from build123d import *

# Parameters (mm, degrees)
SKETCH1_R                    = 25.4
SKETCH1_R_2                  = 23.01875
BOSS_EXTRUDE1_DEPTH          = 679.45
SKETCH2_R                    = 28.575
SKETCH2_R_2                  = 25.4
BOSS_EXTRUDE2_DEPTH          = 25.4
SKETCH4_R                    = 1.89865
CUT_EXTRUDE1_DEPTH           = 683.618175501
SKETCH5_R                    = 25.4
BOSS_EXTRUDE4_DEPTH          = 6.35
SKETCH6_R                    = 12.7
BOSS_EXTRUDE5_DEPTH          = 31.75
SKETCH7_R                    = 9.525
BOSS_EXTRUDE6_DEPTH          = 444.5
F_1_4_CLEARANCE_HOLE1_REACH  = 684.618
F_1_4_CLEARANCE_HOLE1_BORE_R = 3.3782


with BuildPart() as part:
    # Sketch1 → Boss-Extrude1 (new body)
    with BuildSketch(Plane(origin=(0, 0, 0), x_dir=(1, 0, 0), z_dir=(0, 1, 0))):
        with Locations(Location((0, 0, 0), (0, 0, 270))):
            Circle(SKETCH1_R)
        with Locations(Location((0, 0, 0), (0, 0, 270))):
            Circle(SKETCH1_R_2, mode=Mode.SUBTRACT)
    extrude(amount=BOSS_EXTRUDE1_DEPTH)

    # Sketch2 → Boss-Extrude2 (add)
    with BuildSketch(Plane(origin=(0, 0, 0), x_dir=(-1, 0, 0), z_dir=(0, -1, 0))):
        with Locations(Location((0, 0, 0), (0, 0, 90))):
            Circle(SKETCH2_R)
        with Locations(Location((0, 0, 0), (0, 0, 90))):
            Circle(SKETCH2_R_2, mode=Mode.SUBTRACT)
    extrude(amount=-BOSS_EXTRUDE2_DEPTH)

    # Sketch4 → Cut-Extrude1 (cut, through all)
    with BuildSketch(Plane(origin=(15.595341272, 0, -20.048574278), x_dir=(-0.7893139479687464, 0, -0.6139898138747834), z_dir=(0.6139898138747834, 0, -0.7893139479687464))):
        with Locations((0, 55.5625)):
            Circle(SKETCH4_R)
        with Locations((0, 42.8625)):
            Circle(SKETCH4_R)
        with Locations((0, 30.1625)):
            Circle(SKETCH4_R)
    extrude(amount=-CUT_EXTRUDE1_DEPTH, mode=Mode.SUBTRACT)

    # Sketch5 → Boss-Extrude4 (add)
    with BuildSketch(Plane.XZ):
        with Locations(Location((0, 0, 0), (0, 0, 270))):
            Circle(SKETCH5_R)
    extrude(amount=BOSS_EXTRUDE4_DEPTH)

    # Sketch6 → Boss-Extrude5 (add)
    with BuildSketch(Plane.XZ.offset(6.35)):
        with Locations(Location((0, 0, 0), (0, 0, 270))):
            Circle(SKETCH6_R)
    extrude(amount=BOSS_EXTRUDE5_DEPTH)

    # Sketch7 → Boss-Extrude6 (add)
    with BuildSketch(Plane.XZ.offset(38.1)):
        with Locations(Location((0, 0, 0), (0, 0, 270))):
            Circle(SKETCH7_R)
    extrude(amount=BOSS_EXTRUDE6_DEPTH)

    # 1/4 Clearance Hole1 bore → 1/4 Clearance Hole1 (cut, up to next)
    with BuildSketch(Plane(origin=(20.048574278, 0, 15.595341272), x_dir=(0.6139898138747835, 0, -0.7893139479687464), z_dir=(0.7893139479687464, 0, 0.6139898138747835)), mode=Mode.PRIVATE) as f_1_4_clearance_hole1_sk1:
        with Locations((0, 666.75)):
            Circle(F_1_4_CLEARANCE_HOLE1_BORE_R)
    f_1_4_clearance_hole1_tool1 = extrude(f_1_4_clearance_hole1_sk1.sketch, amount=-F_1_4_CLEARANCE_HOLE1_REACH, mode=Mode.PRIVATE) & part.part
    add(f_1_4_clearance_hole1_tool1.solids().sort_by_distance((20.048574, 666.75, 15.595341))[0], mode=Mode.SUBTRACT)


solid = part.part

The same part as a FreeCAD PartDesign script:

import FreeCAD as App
import Part
import Sketcher
Q = App.Units.Quantity

doc = App.newDocument("Part")
body = doc.addObject("PartDesign::Body", "Body")

# Sketch on XZ plane
sketch1 = body.newObject("Sketcher::SketchObject", "Sketch")
sketch1.AttachmentSupport = (doc.getObject("XZ_Plane"), [""])
sketch1.MapMode = "FlatFace"
sketch1.addGeometry([
    Part.Circle(App.Vector(0, 0, 0), App.Vector(0, 0, 1), 25.4),
    Part.Circle(App.Vector(0, 0, 0), App.Vector(0, 0, 1), 23.01875),
], False)
sketch1.addConstraint([
    Sketcher.Constraint("Coincident", 0, 3, -1, 1),
    Sketcher.Constraint("Coincident", 1, 3, -1, 1),
    Sketcher.Constraint("Diameter", 0, Q("2 in")),
    Sketcher.Constraint("Diameter", 1, Q("1.8125 in")),
])
pad1 = body.newObject("PartDesign::Pad", "Pad")
pad1.Profile = sketch1
pad1.Length = Q("26.75 in")
pad1.Reversed = True

# Sketch on XZ plane
sketch2 = body.newObject("Sketcher::SketchObject", "Sketch001")
sketch2.AttachmentSupport = (doc.getObject("XZ_Plane"), [""])
sketch2.MapMode = "FlatFace"
sketch2.addGeometry([
    Part.Circle(App.Vector(0, 0, 0), App.Vector(0, 0, 1), 28.575),
    Part.Circle(App.Vector(0, 0, 0), App.Vector(0, 0, 1), 25.4),
], False)
sketch2.addConstraint([
    Sketcher.Constraint("Coincident", 0, 3, -1, 1),
    Sketcher.Constraint("Coincident", 1, 3, -1, 1),
    Sketcher.Constraint("Diameter", 1, Q("2 in")),
    Sketcher.Constraint("Diameter", 0, Q("2.25 in")),
])
pad2 = body.newObject("PartDesign::Pad", "Pad001")
pad2.Profile = sketch2
pad2.Length = Q("1 in")
pad2.Reversed = True

# Sketch on an angled plane
sketch3 = body.newObject("Sketcher::SketchObject", "Sketch002")
sketch3.Placement = App.Placement(App.Vector(15.595341, 0, -20.048574), App.Rotation(App.Vector(-0.789313948, 0, -0.613989814), App.Vector(0, 1, 0), App.Vector(0.613989814, 0, -0.789313948), "ZXY"))
sketch3.addGeometry([
    Part.Circle(App.Vector(0, 55.5625, 0), App.Vector(0, 0, 1), 1.89865),
    Part.Circle(App.Vector(0, 42.8625, 0), App.Vector(0, 0, 1), 1.89865),
    Part.Circle(App.Vector(0, 30.1625, 0), App.Vector(0, 0, 1), 1.89865),
], False)
sketch3.addConstraint([
    Sketcher.Constraint("Equal", 0, 1),
    Sketcher.Constraint("Equal", 1, 2),
    Sketcher.Constraint("PointOnObject", 0, 3, -2),
    Sketcher.Constraint("PointOnObject", 1, 3, -2),
    Sketcher.Constraint("PointOnObject", 2, 3, -2),
    Sketcher.Constraint("DistanceY", 2, 3, 0, 3, Q("1 in")),
    Sketcher.Constraint("Diameter", 0, Q("0.1495 in")),
    Sketcher.Constraint("DistanceY", 1, 3, 0, 3, Q("0.5 in")),
    Sketcher.Constraint("DistanceY", -1, 1, 0, 3, Q("2.1875 in")),
])
pocket1 = body.newObject("PartDesign::Pocket", "Pocket")
pocket1.Profile = sketch3
pocket1.Type = "ThroughAll"

# Sketch on XZ plane
sketch4 = body.newObject("Sketcher::SketchObject", "Sketch003")
sketch4.AttachmentSupport = (doc.getObject("XZ_Plane"), [""])
sketch4.MapMode = "FlatFace"
sketch4.addGeometry(Part.Circle(App.Vector(0, 0, 0), App.Vector(0, 0, 1), 25.4), False)
sketch4.addConstraint([
    Sketcher.Constraint("Coincident", 0, 3, -1, 1),
    Sketcher.Constraint("Diameter", 0, Q("2 in")),
])
pad3 = body.newObject("PartDesign::Pad", "Pad002")
pad3.Profile = sketch4
pad3.Length = Q("0.25 in")

# Sketch on XZ plane
sketch5 = body.newObject("Sketcher::SketchObject", "Sketch004")
sketch5.AttachmentSupport = (doc.getObject("XZ_Plane"), [""])
sketch5.MapMode = "FlatFace"
sketch5.AttachmentOffset = App.Placement(App.Vector(0, 0, 0.25 * 25.4), App.Rotation())
sketch5.addGeometry(Part.Circle(App.Vector(0, 0, 0), App.Vector(0, 0, 1), 12.7), False)
sketch5.addConstraint([
    Sketcher.Constraint("Coincident", 0, 3, -1, 1),
    Sketcher.Constraint("Diameter", 0, Q("1 in")),
])
pad4 = body.newObject("PartDesign::Pad", "Pad003")
pad4.Profile = sketch5
pad4.Length = Q("1.25 in")

# Sketch on XZ plane
sketch6 = body.newObject("Sketcher::SketchObject", "Sketch005")
sketch6.AttachmentSupport = (doc.getObject("XZ_Plane"), [""])
sketch6.MapMode = "FlatFace"
sketch6.AttachmentOffset = App.Placement(App.Vector(0, 0, 1.5 * 25.4), App.Rotation())
sketch6.addGeometry(Part.Circle(App.Vector(0, 0, 0), App.Vector(0, 0, 1), 9.525), False)
sketch6.addConstraint([
    Sketcher.Constraint("Coincident", 0, 3, -1, 1),
    Sketcher.Constraint("Diameter", 0, Q("0.75 in")),
])
pad5 = body.newObject("PartDesign::Pad", "Pad004")
pad5.Profile = sketch6
pad5.Length = Q("17.5 in")

# Sketch on an angled plane
sketch7 = body.newObject("Sketcher::SketchObject", "Sketch006")
sketch7.Placement = App.Placement(App.Vector(20.048574, 0, 15.595341), App.Rotation(App.Vector(0.613989814, 0, -0.789313948), App.Vector(0, 1, 0), App.Vector(0.789313948, 0, 0.613989814), "ZXY"))
sketch7.addGeometry(Part.Circle(App.Vector(0, 666.75, 0), App.Vector(0, 0, 1), 3.3782), False)
sketch7.addConstraint([
    Sketcher.Constraint("PointOnObject", 0, 3, -2),
    Sketcher.Constraint("Diameter", 0, Q("0.266 in")),
    Sketcher.Constraint("DistanceY", -1, 1, 0, 3, Q("26.25 in")),
])
pocket2 = body.newObject("PartDesign::Pocket", "Pocket001")
pocket2.Profile = sketch7
pocket2.Length = 2.630489

doc.recompute()
